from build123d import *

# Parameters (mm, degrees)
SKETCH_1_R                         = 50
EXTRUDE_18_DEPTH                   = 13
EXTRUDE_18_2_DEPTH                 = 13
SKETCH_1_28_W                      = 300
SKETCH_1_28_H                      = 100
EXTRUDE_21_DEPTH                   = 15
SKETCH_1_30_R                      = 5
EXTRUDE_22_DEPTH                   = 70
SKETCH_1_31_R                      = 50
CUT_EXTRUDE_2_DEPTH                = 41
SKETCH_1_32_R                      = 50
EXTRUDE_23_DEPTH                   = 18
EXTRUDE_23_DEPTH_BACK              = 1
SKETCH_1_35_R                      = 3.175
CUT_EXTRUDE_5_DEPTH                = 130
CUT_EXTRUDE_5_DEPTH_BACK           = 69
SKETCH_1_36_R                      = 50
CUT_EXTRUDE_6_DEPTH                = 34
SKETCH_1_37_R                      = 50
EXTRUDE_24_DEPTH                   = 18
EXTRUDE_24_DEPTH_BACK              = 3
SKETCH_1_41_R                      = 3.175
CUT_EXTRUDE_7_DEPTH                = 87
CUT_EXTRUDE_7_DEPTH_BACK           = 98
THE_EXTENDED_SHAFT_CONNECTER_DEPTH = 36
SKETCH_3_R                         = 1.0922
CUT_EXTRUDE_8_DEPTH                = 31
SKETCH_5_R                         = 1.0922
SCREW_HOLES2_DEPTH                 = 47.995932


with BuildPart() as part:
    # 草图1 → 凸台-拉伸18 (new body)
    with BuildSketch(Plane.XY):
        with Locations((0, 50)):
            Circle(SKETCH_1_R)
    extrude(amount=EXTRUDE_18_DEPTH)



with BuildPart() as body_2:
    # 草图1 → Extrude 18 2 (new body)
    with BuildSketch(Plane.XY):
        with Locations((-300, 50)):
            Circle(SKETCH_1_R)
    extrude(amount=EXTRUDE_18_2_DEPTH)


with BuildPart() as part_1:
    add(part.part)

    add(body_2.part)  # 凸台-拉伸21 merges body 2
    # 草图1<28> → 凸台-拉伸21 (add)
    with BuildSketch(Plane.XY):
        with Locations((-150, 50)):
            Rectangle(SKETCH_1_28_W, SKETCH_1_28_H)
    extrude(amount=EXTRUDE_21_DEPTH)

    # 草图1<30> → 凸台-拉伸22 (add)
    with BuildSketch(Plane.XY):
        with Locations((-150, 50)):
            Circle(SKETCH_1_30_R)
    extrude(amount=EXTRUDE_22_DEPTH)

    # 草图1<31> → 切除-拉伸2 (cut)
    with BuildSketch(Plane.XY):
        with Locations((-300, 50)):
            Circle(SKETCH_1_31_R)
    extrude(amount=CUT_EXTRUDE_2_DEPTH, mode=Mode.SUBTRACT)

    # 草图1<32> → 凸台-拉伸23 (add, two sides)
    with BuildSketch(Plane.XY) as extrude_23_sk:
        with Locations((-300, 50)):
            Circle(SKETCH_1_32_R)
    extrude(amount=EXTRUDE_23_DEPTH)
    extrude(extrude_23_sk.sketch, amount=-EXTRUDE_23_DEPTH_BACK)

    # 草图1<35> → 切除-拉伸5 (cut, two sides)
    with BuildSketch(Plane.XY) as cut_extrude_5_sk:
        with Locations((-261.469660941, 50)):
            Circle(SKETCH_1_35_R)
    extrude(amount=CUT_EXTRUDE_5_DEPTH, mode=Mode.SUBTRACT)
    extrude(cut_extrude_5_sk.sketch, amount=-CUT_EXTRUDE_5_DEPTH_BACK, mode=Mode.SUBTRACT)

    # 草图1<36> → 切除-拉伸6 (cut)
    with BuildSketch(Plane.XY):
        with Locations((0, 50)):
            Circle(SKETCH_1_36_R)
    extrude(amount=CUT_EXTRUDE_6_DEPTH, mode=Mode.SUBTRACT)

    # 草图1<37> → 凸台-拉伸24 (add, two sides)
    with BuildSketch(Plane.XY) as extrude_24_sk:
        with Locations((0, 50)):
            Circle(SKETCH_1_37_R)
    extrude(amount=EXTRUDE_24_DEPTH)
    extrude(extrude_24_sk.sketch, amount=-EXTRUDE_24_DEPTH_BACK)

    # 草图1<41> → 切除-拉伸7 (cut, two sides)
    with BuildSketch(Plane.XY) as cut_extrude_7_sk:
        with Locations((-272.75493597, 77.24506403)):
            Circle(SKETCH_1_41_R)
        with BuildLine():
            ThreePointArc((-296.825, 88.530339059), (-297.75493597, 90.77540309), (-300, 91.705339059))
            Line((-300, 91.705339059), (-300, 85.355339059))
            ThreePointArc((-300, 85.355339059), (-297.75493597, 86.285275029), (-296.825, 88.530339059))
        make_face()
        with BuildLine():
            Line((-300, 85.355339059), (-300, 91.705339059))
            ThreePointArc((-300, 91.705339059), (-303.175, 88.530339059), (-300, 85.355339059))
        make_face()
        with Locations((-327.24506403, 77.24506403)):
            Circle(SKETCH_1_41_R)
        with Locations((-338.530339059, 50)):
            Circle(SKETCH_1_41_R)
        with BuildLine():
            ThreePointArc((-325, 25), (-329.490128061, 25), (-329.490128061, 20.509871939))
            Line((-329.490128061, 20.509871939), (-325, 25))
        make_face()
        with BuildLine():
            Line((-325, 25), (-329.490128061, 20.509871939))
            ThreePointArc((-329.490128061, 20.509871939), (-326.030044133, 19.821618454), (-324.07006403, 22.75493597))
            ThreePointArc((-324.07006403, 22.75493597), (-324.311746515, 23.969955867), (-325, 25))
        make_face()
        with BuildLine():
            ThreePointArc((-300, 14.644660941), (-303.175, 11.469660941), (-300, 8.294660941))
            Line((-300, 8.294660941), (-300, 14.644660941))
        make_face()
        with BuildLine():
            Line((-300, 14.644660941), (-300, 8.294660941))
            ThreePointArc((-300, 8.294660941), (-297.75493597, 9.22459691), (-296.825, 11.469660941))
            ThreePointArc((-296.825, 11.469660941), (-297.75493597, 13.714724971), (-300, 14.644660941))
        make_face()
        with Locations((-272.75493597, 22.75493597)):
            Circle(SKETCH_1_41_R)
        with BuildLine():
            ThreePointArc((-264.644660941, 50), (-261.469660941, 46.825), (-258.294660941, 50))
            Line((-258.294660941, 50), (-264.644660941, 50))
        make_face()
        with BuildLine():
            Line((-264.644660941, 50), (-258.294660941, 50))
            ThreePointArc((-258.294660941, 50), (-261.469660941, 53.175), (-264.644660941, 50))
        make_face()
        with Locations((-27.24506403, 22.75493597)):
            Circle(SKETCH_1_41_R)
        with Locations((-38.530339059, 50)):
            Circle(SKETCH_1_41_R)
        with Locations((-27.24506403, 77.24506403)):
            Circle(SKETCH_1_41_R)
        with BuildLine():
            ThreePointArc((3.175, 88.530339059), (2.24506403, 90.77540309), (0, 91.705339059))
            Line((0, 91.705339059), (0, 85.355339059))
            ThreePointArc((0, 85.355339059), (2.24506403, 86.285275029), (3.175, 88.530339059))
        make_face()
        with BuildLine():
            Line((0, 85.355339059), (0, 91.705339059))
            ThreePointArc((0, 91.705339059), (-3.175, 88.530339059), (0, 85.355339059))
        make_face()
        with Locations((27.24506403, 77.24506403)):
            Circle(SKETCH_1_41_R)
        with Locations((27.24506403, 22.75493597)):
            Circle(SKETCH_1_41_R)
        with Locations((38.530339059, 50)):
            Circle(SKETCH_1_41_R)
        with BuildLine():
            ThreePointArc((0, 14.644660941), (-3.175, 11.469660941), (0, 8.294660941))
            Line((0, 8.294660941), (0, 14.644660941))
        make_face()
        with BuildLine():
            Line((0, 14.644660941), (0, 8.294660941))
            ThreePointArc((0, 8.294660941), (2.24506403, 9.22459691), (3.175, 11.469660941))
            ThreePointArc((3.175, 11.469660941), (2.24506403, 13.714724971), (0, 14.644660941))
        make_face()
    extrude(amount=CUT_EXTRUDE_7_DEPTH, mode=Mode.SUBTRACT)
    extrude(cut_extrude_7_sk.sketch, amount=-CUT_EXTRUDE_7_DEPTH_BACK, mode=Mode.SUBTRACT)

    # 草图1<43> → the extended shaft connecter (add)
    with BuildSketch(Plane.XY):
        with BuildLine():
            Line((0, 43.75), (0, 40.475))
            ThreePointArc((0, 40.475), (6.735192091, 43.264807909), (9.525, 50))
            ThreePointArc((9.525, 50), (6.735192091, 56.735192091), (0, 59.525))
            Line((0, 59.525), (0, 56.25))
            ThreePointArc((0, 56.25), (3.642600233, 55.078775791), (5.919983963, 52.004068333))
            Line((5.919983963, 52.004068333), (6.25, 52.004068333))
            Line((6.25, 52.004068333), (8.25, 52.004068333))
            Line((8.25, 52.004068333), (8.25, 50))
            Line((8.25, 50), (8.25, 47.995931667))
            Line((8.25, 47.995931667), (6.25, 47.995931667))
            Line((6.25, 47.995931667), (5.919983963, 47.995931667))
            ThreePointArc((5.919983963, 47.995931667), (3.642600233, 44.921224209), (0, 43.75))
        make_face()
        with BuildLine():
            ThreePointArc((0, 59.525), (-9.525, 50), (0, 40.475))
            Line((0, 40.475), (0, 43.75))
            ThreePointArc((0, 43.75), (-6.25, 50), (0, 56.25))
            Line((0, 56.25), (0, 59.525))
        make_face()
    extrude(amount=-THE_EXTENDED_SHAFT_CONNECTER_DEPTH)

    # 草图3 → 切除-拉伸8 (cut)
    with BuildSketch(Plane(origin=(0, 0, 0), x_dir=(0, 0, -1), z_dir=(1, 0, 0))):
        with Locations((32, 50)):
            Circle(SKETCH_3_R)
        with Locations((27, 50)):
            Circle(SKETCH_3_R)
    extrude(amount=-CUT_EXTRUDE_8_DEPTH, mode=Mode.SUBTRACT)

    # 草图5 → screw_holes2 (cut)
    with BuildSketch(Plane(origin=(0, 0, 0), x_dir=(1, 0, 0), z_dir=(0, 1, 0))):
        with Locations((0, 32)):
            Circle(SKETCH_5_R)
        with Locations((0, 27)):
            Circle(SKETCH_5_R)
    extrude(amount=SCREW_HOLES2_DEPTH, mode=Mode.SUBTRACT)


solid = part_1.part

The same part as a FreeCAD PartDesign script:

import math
import FreeCAD as App
import Part
import Sketcher
from FreeCAD import Vector
Q = App.Units.Quantity


def add_polygon(sketch, points):
    """Adds a closed chain of lines whose ends are joined by coincident constraints."""
    first, n = sketch.GeometryCount, len(points)
    for a, b in zip(points, points[1:] + points[:1]):
        sketch.addGeometry(Part.LineSegment(App.Vector(*a, 0), App.Vector(*b, 0)), False)
    for i in range(n):
        sketch.addConstraint(Sketcher.Constraint("Coincident", first + i, 2, first + (i + 1) % n, 1))

doc = App.newDocument("Part")
body = doc.addObject("PartDesign::Body", "Body")

sketch1 = body.newObject("Sketcher::SketchObject", "Sketch")
sketch1.AttachmentSupport = (doc.getObject("XY_Plane"), [""])
sketch1.MapMode = "FlatFace"
sketch1.addGeometry(Part.Circle(Vector(0, 50, 0), Vector(0, 0, 1), 50), False)
sketch1.addConstraint(Sketcher.Constraint("PointOnObject", 0, 3, -2))
sketch1.addConstraint(Sketcher.Constraint("Diameter", 0, Q("100 mm")))
sketch1.addConstraint(Sketcher.Constraint("DistanceY", -1, 1, 0, 3, Q("50 mm")))
pad1 = body.newObject("PartDesign::Pad", "Pad")
pad1.Profile = sketch1
pad1.Length = 13
body2 = doc.addObject("PartDesign::Body", "Body001")

sketch2 = body2.newObject("Sketcher::SketchObject", "Sketch001")
sketch2.AttachmentSupport = (doc.getObject("XY_Plane001"), [""])
sketch2.MapMode = "FlatFace"
sketch2.addGeometry(Part.Circle(Vector(-300, 50, 0), Vector(0, 0, 1), 50), False)
sketch2.addConstraint(Sketcher.Constraint("Diameter", 0, Q("100 mm")))
sketch2.addConstraint(Sketcher.Constraint("DistanceX", 0, 3, -1, 1, Q("300 mm")))
sketch2.addConstraint(Sketcher.Constraint("DistanceY", -1, 1, 0, 3, Q("50 mm")))
pad2 = body2.newObject("PartDesign::Pad", "Pad001")
pad2.Profile = sketch2
pad2.Length = 13
body.AllowCompound = True
doc.recompute()

boolean = body.newObject("PartDesign::Boolean", "Boolean")
boolean.Type = "Fuse"
boolean.addObjects([body2])

sketch3 = body.newObject("Sketcher::SketchObject", "Sketch002")
sketch3.AttachmentSupport = (doc.getObject("XY_Plane"), [""])
sketch3.MapMode = "FlatFace"
add_polygon(sketch3, [(-300, 100), (-300, 0), (0, 0), (0, 100)])
sketch3.addConstraint(Sketcher.Constraint("Vertical", 0))
sketch3.addConstraint(Sketcher.Constraint("Horizontal", 1))
sketch3.addConstraint(Sketcher.Constraint("Vertical", 2))
sketch3.addConstraint(Sketcher.Constraint("Horizontal", 3))
sketch3.addConstraint(Sketcher.Constraint("Coincident", 1, 2, -1, 1))
sketch3.addConstraint(Sketcher.Constraint("DistanceX", 1, 1, 1, 2, Q("300 mm")))
sketch3.addConstraint(Sketcher.Constraint("DistanceY", 0, 2, 0, 1, Q("100 mm")))
pad3 = body.newObject("PartDesign::Pad", "Pad002")
pad3.Profile = sketch3
pad3.Length = 15

sketch4 = body.newObject("Sketcher::SketchObject", "Sketch003")
sketch4.AttachmentSupport = (doc.getObject("XY_Plane"), [""])
sketch4.MapMode = "FlatFace"
sketch4.addGeometry(Part.Circle(Vector(-150, 50, 0), Vector(0, 0, 1), 5), False)
sketch4.addConstraint(Sketcher.Constraint("Diameter", 0, Q("10 mm")))
sketch4.addConstraint(Sketcher.Constraint("DistanceX", 0, 3, -1, 1, Q("150 mm")))
sketch4.addConstraint(Sketcher.Constraint("DistanceY", -1, 1, 0, 3, Q("50 mm")))
pad4 = body.newObject("PartDesign::Pad", "Pad003")
pad4.Profile = sketch4
pad4.Length = 70

sketch5 = body.newObject("Sketcher::SketchObject", "Sketch004")
sketch5.AttachmentSupport = (doc.getObject("XY_Plane"), [""])
sketch5.MapMode = "FlatFace"
sketch5.addGeometry(Part.Circle(Vector(-300, 50, 0), Vector(0, 0, 1), 50), False)
sketch5.addConstraint(Sketcher.Constraint("Diameter", 0, Q("100 mm")))
sketch5.addConstraint(Sketcher.Constraint("DistanceX", 0, 3, -1, 1, Q("300 mm")))
sketch5.addConstraint(Sketcher.Constraint("DistanceY", -1, 1, 0, 3, Q("50 mm")))
pocket1 = body.newObject("PartDesign::Pocket", "Pocket")
pocket1.Profile = sketch5
pocket1.Length = 41
pocket1.Reversed = True

sketch6 = body.newObject("Sketcher::SketchObject", "Sketch005")
sketch6.AttachmentSupport = (doc.getObject("XY_Plane"), [""])
sketch6.MapMode = "FlatFace"
sketch6.addGeometry(Part.Circle(Vector(-300, 50, 0), Vector(0, 0, 1), 50), False)
sketch6.addConstraint(Sketcher.Constraint("Diameter", 0, Q("100 mm")))
sketch6.addConstraint(Sketcher.Constraint("DistanceX", 0, 3, -1, 1, Q("300 mm")))
sketch6.addConstraint(Sketcher.Constraint("DistanceY", -1, 1, 0, 3, Q("50 mm")))
pad5 = body.newObject("PartDesign::Pad", "Pad004")
pad5.Profile = sketch6
pad5.Type = "TwoLengths"
pad5.Length = 18
pad5.Length2 = 1

sketch7 = body.newObject("Sketcher::SketchObject", "Sketch006")
sketch7.AttachmentSupport = (doc.getObject("XY_Plane"), [""])
sketch7.MapMode = "FlatFace"
sketch7.addGeometry(Part.Circle(Vector(-261.5, 50, 0), Vector(0, 0, 1), 3.2), False)
sketch7.addConstraint(Sketcher.Constraint("Diameter", 0, Q("6.35 mm")))
sketch7.addConstraint(Sketcher.Constraint("DistanceY", -1, 1, 0, 3, Q("50 mm")))
sketch7.addConstraint(Sketcher.Constraint("DistanceX", 0, 3, -1, 1, Q("261.469661 mm")))
pocket2 = body.newObject("PartDesign::Pocket", "Pocket001")
pocket2.Profile = sketch7
pocket2.Type = "ThroughAll"
pocket2.Midplane = True

sketch8 = body.newObject("Sketcher::SketchObject", "Sketch007")
sketch8.AttachmentSupport = (doc.getObject("XY_Plane"), [""])
sketch8.MapMode = "FlatFace"
sketch8.addGeometry(Part.Circle(Vector(0, 50, 0), Vector(0, 0, 1), 50), False)
sketch8.addConstraint(Sketcher.Constraint("PointOnObject", 0, 3, -2))
sketch8.addConstraint(Sketcher.Constraint("Diameter", 0, Q("100 mm")))
sketch8.addConstraint(Sketcher.Constraint("DistanceY", -1, 1, 0, 3, Q("50 mm")))
pocket3 = body.newObject("PartDesign::Pocket", "Pocket002")
pocket3.Profile = sketch8
pocket3.Length = 34
pocket3.Reversed = True

sketch9 = body.newObject("Sketcher::SketchObject", "Sketch008")
sketch9.AttachmentSupport = (doc.getObject("XY_Plane"), [""])
sketch9.MapMode = "FlatFace"
sketch9.addGeometry(Part.Circle(Vector(0, 50, 0), Vector(0, 0, 1), 50), False)
sketch9.addConstraint(Sketcher.Constraint("PointOnObject", 0, 3, -2))
sketch9.addConstraint(Sketcher.Constraint("Diameter", 0, Q("100 mm")))
sketch9.addConstraint(Sketcher.Constraint("DistanceY", -1, 1, 0, 3, Q("50 mm")))
pad6 = body.newObject("PartDesign::Pad", "Pad005")
pad6.Profile = sketch9
pad6.Type = "TwoLengths"
pad6.Length = 18
pad6.Length2 = 3

sketch10 = body.newObject("Sketcher::SketchObject", "Sketch009")
sketch10.AttachmentSupport = (doc.getObject("XY_Plane"), [""])
sketch10.MapMode = "FlatFace"
sketch10.addGeometry(Part.Circle(Vector(-272.8, 77.2, 0), Vector(0, 0, 1), 3.2), False)
sketch10.addGeometry(Part.ArcOfCircle(Part.Circle(Vector(-300, 88.5, 0), Vector(0, 0, 1), 3.2), math.radians(0), math.radians(90)), False)
sketch10.addGeometry(Part.ArcOfCircle(Part.Circle(Vector(-300, 88.5, 0), Vector(0, 0, 1), 3.2), math.radians(90), math.radians(270)), False)
sketch10.addGeometry(Part.ArcOfCircle(Part.Circle(Vector(-300, 88.5, 0), Vector(0, 0, 1), 3.2), math.radians(-90), math.radians(0)), False)
sketch10.addGeometry(Part.Circle(Vector(-327.2, 77.2, 0), Vector(0, 0, 1), 3.2), False)
sketch10.addGeometry(Part.Circle(Vector(-338.5, 50, 0), Vector(0, 0, 1), 3.2), False)
sketch10.addGeometry(Part.ArcOfCircle(Part.Circle(Vector(-327.2, 22.8, 0), Vector(0, 0, 1), 3.2), math.radians(45), math.radians(225)), False)
sketch10.addGeometry(Part.ArcOfCircle(Part.Circle(Vector(-327.2, 22.8, 0), Vector(0, 0, 1), 3.2), math.radians(-135), math.radians(0)), False)
sketch10.addGeometry(Part.ArcOfCircle(Part.Circle(Vector(-327.2, 22.8, 0), Vector(0, 0, 1), 3.2), math.radians(0), math.radians(45)), False)
sketch10.addGeometry(Part.ArcOfCircle(Part.Circle(Vector(-300, 11.5, 0), Vector(0, 0, 1), 3.2), math.radians(90), math.radians(270)), False)
sketch10.addGeometry(Part.ArcOfCircle(Part.Circle(Vector(-300, 11.5, 0), Vector(0, 0, 1), 3.2), math.radians(-90), math.radians(0)), False)
sketch10.addGeometry(Part.ArcOfCircle(Part.Circle(Vector(-300, 11.5, 0), Vector(0, 0, 1), 3.2), math.radians(0), math.radians(90)), False)
sketch10.addGeometry(Part.Circle(Vector(-272.8, 22.8, 0), Vector(0, 0, 1), 3.2), False)
sketch10.addGeometry(Part.Circle(Vector(-261.5, 50, 0), Vector(0, 0, 1), 3.2), False)
sketch10.addGeometry(Part.Circle(Vector(-27.2, 22.8, 0), Vector(0, 0, 1), 3.2), False)
sketch10.addGeometry(Part.Circle(Vector(-38.5, 50, 0), Vector(0, 0, 1), 3.2), False)
sketch10.addGeometry(Part.Circle(Vector(-27.2, 77.2, 0), Vector(0, 0, 1), 3.2), False)
sketch10.addGeometry(Part.ArcOfCircle(Part.Circle(Vector(0, 88.5, 0), Vector(0, 0, 1), 3.2), math.radians(0), math.radians(90)), False)
sketch10.addGeometry(Part.ArcOfCircle(Part.Circle(Vector(0, 88.5, 0), Vector(0, 0, 1), 3.2), math.radians(90), math.radians(270)), False)
sketch10.addGeometry(Part.ArcOfCircle(Part.Circle(Vector(0, 88.5, 0), Vector(0, 0, 1), 3.2), math.radians(-90), math.radians(0)), False)
sketch10.addGeometry(Part.Circle(Vector(27.2, 77.2, 0), Vector(0, 0, 1), 3.2), False)
sketch10.addGeometry(Part.Circle(Vector(27.2, 22.8, 0), Vector(0, 0, 1), 3.2), False)
sketch10.addGeometry(Part.Circle(Vector(38.5, 50, 0), Vector(0, 0, 1), 3.2), False)
sketch10.addGeometry(Part.ArcOfCircle(Part.Circle(Vector(0, 11.5, 0), Vector(0, 0, 1), 3.2), math.radians(90), math.radians(270)), False)
sketch10.addGeometry(Part.ArcOfCircle(Part.Circle(Vector(0, 11.5, 0), Vector(0, 0, 1), 3.2), math.radians(-90), math.radians(0)), False)
sketch10.addGeometry(Part.ArcOfCircle(Part.Circle(Vector(0, 11.5, 0), Vector(0, 0, 1), 3.2), math.radians(0), math.radians(90)), False)
sketch10.addConstraint(Sketcher.Constraint("Tangent", 1, 2, 2, 1))
sketch10.addConstraint(Sketcher.Constraint("Tangent", 2, 2, 3, 1))
sketch10.addConstraint(Sketcher.Constraint("Tangent", 3, 2, 1, 1))
sketch10.addConstraint(Sketcher.Constraint("Tangent", 6, 2, 7, 1))
sketch10.addConstraint(Sketcher.Constraint("Tangent", 7, 2, 8, 1))
sketch10.addConstraint(Sketcher.Constraint("Tangent", 8, 2, 6, 1))
sketch10.addConstraint(Sketcher.Constraint("Tangent", 9, 2, 10, 1))
sketch10.addConstraint(Sketcher.Constraint("Tangent", 10, 2, 11, 1))
sketch10.addConstraint(Sketcher.Constraint("Tangent", 11, 2, 9, 1))
sketch10.addConstraint(Sketcher.Constraint("Tangent", 17, 2, 18, 1))
sketch10.addConstraint(Sketcher.Constraint("Tangent", 18, 2, 19, 1))
sketch10.addConstraint(Sketcher.Constraint("Tangent", 19, 2, 17, 1))
sketch10.addConstraint(Sketcher.Constraint("Tangent", 23, 2, 24, 1))
sketch10.addConstraint(Sketcher.Constraint("Tangent", 24, 2, 25, 1))
sketch10.addConstraint(Sketcher.Constraint("Tangent", 25, 2, 23, 1))
sketch10.addConstraint(Sketcher.Constraint("Equal", 0, 1))
sketch10.addConstraint(Sketcher.Constraint("Equal", 3, 4))
sketch10.addConstraint(Sketcher.Constraint("Equal", 4, 5))
sketch10.addConstraint(Sketcher.Constraint("Equal", 5, 6))
sketch10.addConstraint(Sketcher.Constraint("Equal", 8, 9))
sketch10.addConstraint(Sketcher.Constraint("Equal", 11, 12))
sketch10.addConstraint(Sketcher.Constraint("Equal", 12, 13))
sketch10.addConstraint(Sketcher.Constraint("Equal", 13, 14))
sketch10.addConstraint(Sketcher.Constraint("Equal", 14, 15))
sketch10.addConstraint(Sketcher.Constraint("Equal", 15, 16))
sketch10.addConstraint(Sketcher.Constraint("Equal", 16, 17))
sketch10.addConstraint(Sketcher.Constraint("Equal", 19, 20))
sketch10.addConstraint(Sketcher.Constraint("Equal", 20, 21))
sketch10.addConstraint(Sketcher.Constraint("Equal", 21, 22))
sketch10.addConstraint(Sketcher.Constraint("Equal", 22, 23))
sketch10.addConstraint(Sketcher.Constraint("Symmetric", 16, 3, 20, 3, -2))
sketch10.addConstraint(Sketcher.Constraint("Symmetric", 14, 3, 21, 3, -2))
sketch10.addConstraint(Sketcher.Constraint("Symmetric", 15, 3, 22, 3, -2))
sketch10.addConstraint(Sketcher.Constraint("PointOnObject", 17, 3, -2))
sketch10.addConstraint(Sketcher.Constraint("PointOnObject", 23, 3, -2))
sketch10.addConstraint(Sketcher.Constraint("PointOnObject", 17, 2, -2))
sketch10.addConstraint(Sketcher.Constraint("PointOnObject", 18, 2, -2))
sketch10.addConstraint(Sketcher.Constraint("PointOnObject", 23, 2, -2))
sketch10.addConstraint(Sketcher.Constraint("PointOnObject", 25, 2, -2))
sketch10.addConstraint(Sketcher.Constraint("Horizontal", 0, 3, 4, 3))
sketch10.addConstraint(Sketcher.Constraint("Horizontal", 8, 3, 12, 3))
sketch10.addConstraint(Sketcher.Constraint("Horizontal", 5, 3, 13, 3))
sketch10.addConstraint(Sketcher.Constraint("Horizontal", 12, 3, 14, 3))
sketch10.addConstraint(Sketcher.Constraint("Horizontal", 13, 3, 15, 3))
sketch10.addConstraint(Sketcher.Constraint("Horizontal", 4, 3, 16, 3))
sketch10.addConstraint(Sketcher.Constraint("Horizontal", 3, 3, 17, 3))
sketch10.addConstraint(Sketcher.Constraint("Horizontal", 11, 3, 23, 3))
sketch10.addConstraint(Sketcher.Constraint("Horizontal", 19, 3, 3, 2))
sketch10.addConstraint(Sketcher.Constraint("Horizontal", 21, 3, 7, 2))
sketch10.addConstraint(Sketcher.Constraint("Horizontal", 25, 3, 10, 2))
sketch10.addConstraint(Sketcher.Constraint("Horizontal", 3, 2, 19, 2))
sketch10.addConstraint(Sketcher.Constraint("Horizontal", 10, 2, 24, 2))
sketch10.addConstraint(Sketcher.Constraint("Vertical", 4, 3, 6, 3))
sketch10.addConstraint(Sketcher.Constraint("Vertical", 3, 3, 9, 3))
sketch10.addConstraint(Sketcher.Constraint("Vertical", 0, 3, 12, 3))
sketch10.addConstraint(Sketcher.Constraint("Vertical", 14, 3, 16, 3))
sketch10.addConstraint(Sketcher.Constraint("Vertical", 11, 3, 1, 2))
sketch10.addConstraint(Sketcher.Constraint("Vertical", 1, 2, 2, 2))
sketch10.addConstraint(Sketcher.Constraint("Vertical", 2, 2, 9, 2))
sketch10.addConstraint(Sketcher.Constraint("Vertical", 9, 2, 11, 2))
sketch10.addConstraint(Sketcher.Constraint("Diameter", 0, Q("6.35 mm")))
sketch10.addConstraint(Sketcher.Constraint("DistanceX", 1, 3, -1, 1, Q("300 mm")))
sketch10.addConstraint(Sketcher.Constraint("DistanceY", -1, 1, 5, 3, Q("50 mm")))
sketch10.addConstraint(Sketcher.Constraint("DistanceX", 8, 2, -1, 1, Q("325 mm")))
sketch10.addConstraint(Sketcher.Constraint("DistanceY", -1, 1, 8, 2, Q("25 mm")))
sketch10.addConstraint(Sketcher.Constraint("DistanceY", -1, 1, 1, 3, Q("88.530339 mm")))
sketch10.addConstraint(Sketcher.Constraint("DistanceX", 5, 3, -1, 1, Q("338.530339 mm")))
sketch10.addConstraint(Sketcher.Constraint("DistanceY", -1, 1, 9, 3, Q("11.469661 mm")))
sketch10.addConstraint(Sketcher.Constraint("DistanceX", 13, 3, -1, 1, Q("261.469661 mm")))
sketch10.addConstraint(Sketcher.Constraint("DistanceX", 15, 3, -1, 1, Q("38.530339 mm")))
sketch10.addConstraint(Sketcher.Constraint("DistanceX", 6, 2, -1, 1, Q("329.490128 mm")))
sketch10.addConstraint(Sketcher.Constraint("DistanceX", 4, 3, 0, 3, Q("54.490128 mm")))
sketch10.addConstraint(Sketcher.Constraint("DistanceY", 6, 3, 4, 3, Q("54.490128 mm")))
sketch10.addConstraint(Sketcher.Constraint("DistanceX", 12, 3, 14, 3, Q("245.509872 mm")))
sketch10.addConstraint(Sketcher.Constraint("DistanceX", 16, 3, 20, 3, Q("54.490128 mm")))
pocket4 = body.newObject("PartDesign::Pocket", "Pocket003")
pocket4.Profile = sketch10
pocket4.Type = "ThroughAll"
pocket4.Midplane = True

sketch11 = body.newObject("Sketcher::SketchObject", "Sketch010")
sketch11.AttachmentSupport = (doc.getObject("XY_Plane"), [""])
sketch11.MapMode = "FlatFace"
sketch11.addGeometry(Part.ArcOfCircle(Part.Circle(Vector(0, 50, 0), Vector(0, 0, 1), 9.5), math.radians(-90), math.radians(0)), False)
sketch11.addGeometry(Part.ArcOfCircle(Part.Circle(Vector(0, 50, 0), Vector(0, 0, 1), 9.5), math.radians(0), math.radians(90)), False)
sketch11.addGeometry(Part.ArcOfCircle(Part.Circle(Vector(0, 50, 0), Vector(0, 0, 1), 9.5), math.radians(90), math.radians(270)), False)
sketch11.addGeometry(Part.ArcOfCircle(Part.Circle(Vector(0, 50, 0), Vector(0, 0, 1), 6.3), math.radians(19), math.radians(90)), False)
sketch11.addGeometry(Part.LineSegment(Vector(5.9, 52, 0), Vector(8.2, 52, 0)), False)
sketch11.addGeometry(Part.LineSegment(Vector(8.2, 52, 0), Vector(8.2, 48, 0)), False)
sketch11.addGeometry(Part.LineSegment(Vector(8.2, 48, 0), Vector(5.9, 48, 0)), False)
sketch11.addGeometry(Part.ArcOfCircle(Part.Circle(Vector(0, 50, 0), Vector(0, 0, 1), 6.3), math.radians(-90), math.radians(-19)), False)
sketch11.addGeometry(Part.ArcOfCircle(Part.Circle(Vector(0, 50, 0), Vector(0, 0, 1), 6.2), math.radians(90), math.radians(270)), False)
sketch11.addConstraint(Sketcher.Constraint("Tangent", 0, 2, 1, 1))
sketch11.addConstraint(Sketcher.Constraint("Tangent", 1, 2, 2, 1))
sketch11.addConstraint(Sketcher.Constraint("Tangent", 2, 2, 0, 1))
sketch11.addConstraint(Sketcher.Constraint("Coincident", 3, 1, 4, 1))
sketch11.addConstraint(Sketcher.Constraint("Coincident", 4, 2, 5, 1))
sketch11.addConstraint(Sketcher.Constraint("Coincident", 5, 2, 6, 1))
sketch11.addConstraint(Sketcher.Constraint("Coincident", 6, 2, 7, 2))
sketch11.addConstraint(Sketcher.Constraint("Tangent", 7, 1, 8, 2))
sketch11.addConstraint(Sketcher.Constraint("Tangent", 8, 1, 3, 2))
sketch11.addConstraint(Sketcher.Constraint("Horizontal", 4))
sketch11.addConstraint(Sketcher.Constraint("Vertical", 5))
sketch11.addConstraint(Sketcher.Constraint("Horizontal", 6))
sketch11.addConstraint(Sketcher.Constraint("Coincident", 3, 3, 0, 3))
sketch11.addConstraint(Sketcher.Constraint("Equal", 3, 7))
sketch11.addConstraint(Sketcher.Constraint("Equal", 7, 8))
sketch11.addConstraint(Sketcher.Constraint("PointOnObject", 0, 3, -2))
sketch11.addConstraint(Sketcher.Constraint("PointOnObject", 1, 2, -2))
sketch11.addConstraint(Sketcher.Constraint("PointOnObject", 2, 2, -2))
sketch11.addConstraint(Sketcher.Constraint("PointOnObject", 7, 1, -2))
sketch11.addConstraint(Sketcher.Constraint("PointOnObject", 8, 1, -2))
sketch11.addConstraint(Sketcher.Constraint("Horizontal", 8, 3, 0, 2))
sketch11.addConstraint(Sketcher.Constraint("Vertical", 3, 1, 6, 2))
sketch11.addConstraint(Sketcher.Constraint("Radius", 3, Q("6.25 mm")))
sketch11.addConstraint(Sketcher.Constraint("DistanceY", -1, 1, 0, 3, Q("50 mm")))
sketch11.addConstraint(Sketcher.Constraint("Radius", 0, Q("9.525 mm")))
sketch11.addConstraint(Sketcher.Constraint("DistanceX", -1, 1, 4, 2, Q("8.25 mm")))
sketch11.addConstraint(Sketcher.Constraint("DistanceX", 4, 1, 4, 2, Q("2.330016 mm")))
pad7 = body.newObject("PartDesign::Pad", "Pad006")
pad7.Profile = sketch11
pad7.Length = 36
pad7.Reversed = True

sketch12 = body.newObject("Sketcher::SketchObject", "Sketch011")
sketch12.AttachmentSupport = (doc.getObject("YZ_Plane"), [""])
sketch12.MapMode = "FlatFace"
sketch12.addGeometry(Part.Circle(Vector(50, -32, 0), Vector(0, 0, 1), 1.1), False)
sketch12.addGeometry(Part.Circle(Vector(50, -27, 0), Vector(0, 0, 1), 1.1), False)
sketch12.addConstraint(Sketcher.Constraint("Equal", 0, 1))
sketch12.addConstraint(Sketcher.Constraint("Vertical", 0, 3, 1, 3))
sketch12.addConstraint(Sketcher.Constraint("DistanceX", -1, 1, 0, 3, Q("50 mm")))
sketch12.addConstraint(Sketcher.Constraint("DistanceY", 0, 3, -1, 1, Q("32 mm")))
sketch12.addConstraint(Sketcher.Constraint("DistanceY", 1, 3, -1, 1, Q("27 mm")))
sketch12.addConstraint(Sketcher.Constraint("Diameter", 0, Q("2.1844 mm")))
pocket5 = body.newObject("PartDesign::Pocket", "Pocket004")
pocket5.Profile = sketch12
pocket5.Length = 31

sketch13 = body.newObject("Sketcher::SketchObject", "Sketch012")
sketch13.AttachmentSupport = (doc.getObject("XZ_Plane"), [""])
sketch13.MapMode = "FlatFace"
sketch13.addGeometry(Part.Circle(Vector(0, -32, 0), Vector(0, 0, 1), 1.1), False)
sketch13.addGeometry(Part.Circle(Vector(0, -27, 0), Vector(0, 0, 1), 1.1), False)
sketch13.addConstraint(Sketcher.Constraint("Equal", 0, 1))
sketch13.addConstraint(Sketcher.Constraint("PointOnObject", 0, 3, -2))
sketch13.addConstraint(Sketcher.Constraint("PointOnObject", 1, 3, -2))
sketch13.addConstraint(Sketcher.Constraint("DistanceY", 0, 3, -1, 1, Q("32 mm")))
sketch13.addConstraint(Sketcher.Constraint("DistanceY", 1, 3, -1, 1, Q("27 mm")))
sketch13.addConstraint(Sketcher.Constraint("Diameter", 0, Q("2.1844 mm")))
pocket6 = body.newObject("PartDesign::Pocket", "Pocket005")
pocket6.Profile = sketch13
pocket6.Length = 47.995932

doc.recompute()
